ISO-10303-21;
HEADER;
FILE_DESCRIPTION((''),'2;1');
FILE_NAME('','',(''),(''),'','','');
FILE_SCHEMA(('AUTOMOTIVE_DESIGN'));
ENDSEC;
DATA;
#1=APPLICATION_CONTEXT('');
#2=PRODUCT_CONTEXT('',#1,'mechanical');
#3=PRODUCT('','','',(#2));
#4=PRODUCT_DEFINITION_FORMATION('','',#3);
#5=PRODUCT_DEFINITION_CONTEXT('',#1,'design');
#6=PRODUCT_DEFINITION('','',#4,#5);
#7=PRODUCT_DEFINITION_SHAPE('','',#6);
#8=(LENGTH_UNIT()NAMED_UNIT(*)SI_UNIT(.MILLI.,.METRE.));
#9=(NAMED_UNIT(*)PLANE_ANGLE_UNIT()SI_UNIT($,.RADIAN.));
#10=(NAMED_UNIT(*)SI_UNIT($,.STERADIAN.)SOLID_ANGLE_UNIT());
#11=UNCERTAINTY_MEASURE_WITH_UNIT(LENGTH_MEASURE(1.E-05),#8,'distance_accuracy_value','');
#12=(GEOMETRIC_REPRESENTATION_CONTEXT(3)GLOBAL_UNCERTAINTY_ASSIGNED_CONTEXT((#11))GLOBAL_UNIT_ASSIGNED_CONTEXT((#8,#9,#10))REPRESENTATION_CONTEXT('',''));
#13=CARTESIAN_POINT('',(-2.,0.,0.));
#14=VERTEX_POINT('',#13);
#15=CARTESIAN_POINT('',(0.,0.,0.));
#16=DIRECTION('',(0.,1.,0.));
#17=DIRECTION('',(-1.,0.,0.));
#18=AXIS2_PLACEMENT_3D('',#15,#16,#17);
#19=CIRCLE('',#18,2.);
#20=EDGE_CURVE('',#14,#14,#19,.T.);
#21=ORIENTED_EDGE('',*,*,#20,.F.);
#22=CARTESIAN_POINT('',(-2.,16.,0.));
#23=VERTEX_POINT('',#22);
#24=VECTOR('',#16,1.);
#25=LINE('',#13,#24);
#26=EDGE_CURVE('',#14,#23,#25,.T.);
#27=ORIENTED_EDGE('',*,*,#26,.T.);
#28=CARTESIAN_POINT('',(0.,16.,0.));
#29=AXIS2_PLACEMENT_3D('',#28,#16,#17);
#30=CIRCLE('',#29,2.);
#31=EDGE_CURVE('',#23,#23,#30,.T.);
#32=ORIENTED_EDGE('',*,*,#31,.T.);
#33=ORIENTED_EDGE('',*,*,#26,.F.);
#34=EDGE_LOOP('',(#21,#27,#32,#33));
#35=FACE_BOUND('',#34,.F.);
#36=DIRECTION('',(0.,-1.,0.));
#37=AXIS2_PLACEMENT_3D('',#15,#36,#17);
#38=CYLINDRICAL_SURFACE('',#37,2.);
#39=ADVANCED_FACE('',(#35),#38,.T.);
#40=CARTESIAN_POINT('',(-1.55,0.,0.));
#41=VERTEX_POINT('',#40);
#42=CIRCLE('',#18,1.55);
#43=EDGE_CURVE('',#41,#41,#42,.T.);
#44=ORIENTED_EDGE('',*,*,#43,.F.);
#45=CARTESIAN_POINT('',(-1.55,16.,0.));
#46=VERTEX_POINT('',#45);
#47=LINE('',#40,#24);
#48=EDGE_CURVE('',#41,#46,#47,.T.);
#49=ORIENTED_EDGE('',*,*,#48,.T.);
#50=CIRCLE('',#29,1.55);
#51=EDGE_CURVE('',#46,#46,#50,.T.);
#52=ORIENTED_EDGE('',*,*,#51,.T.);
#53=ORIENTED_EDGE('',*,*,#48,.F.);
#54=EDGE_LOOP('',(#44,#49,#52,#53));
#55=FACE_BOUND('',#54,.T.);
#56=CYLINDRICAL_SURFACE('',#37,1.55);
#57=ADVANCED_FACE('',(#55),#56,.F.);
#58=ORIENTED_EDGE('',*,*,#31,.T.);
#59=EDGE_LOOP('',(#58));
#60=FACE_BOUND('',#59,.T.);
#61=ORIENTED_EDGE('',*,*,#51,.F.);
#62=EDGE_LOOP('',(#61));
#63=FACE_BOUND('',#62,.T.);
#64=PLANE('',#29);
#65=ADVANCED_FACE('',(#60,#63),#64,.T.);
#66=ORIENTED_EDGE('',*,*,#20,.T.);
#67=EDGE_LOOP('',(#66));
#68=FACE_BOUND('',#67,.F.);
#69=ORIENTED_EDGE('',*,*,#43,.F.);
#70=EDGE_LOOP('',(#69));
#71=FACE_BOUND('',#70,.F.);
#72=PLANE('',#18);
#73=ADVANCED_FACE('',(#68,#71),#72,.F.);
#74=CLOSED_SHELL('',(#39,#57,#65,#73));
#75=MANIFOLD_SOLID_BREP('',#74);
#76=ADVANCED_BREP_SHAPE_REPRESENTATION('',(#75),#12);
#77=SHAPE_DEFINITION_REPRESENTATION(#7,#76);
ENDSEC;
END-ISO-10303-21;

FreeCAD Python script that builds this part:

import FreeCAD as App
import Part
import Sketcher
Q = App.Units.Quantity

doc = App.newDocument("Part")
body = doc.addObject("PartDesign::Body", "Body")

# Sketch on XZ plane
sketch1 = body.newObject("Sketcher::SketchObject", "Sketch")
sketch1.AttachmentSupport = (doc.getObject("XZ_Plane"), [""])
sketch1.MapMode = "FlatFace"
sketch1.addGeometry([
    Part.Circle(App.Vector(0, 0, 0), App.Vector(0, 0, 1), 2),
    Part.Circle(App.Vector(0, 0, 0), App.Vector(0, 0, 1), 1.6),
], False)
sketch1.addConstraint([
    Sketcher.Constraint("Coincident", 0, 3, -1, 1),
    Sketcher.Constraint("Coincident", 1, 3, -1, 1),
    Sketcher.Constraint("Diameter", 0, Q("4 mm")),
    Sketcher.Constraint("Diameter", 1, Q("3.1 mm")),
])
pad1 = body.newObject("PartDesign::Pad", "Pad")
pad1.Profile = sketch1
pad1.Length = 16
pad1.Reversed = True

doc.recompute()
